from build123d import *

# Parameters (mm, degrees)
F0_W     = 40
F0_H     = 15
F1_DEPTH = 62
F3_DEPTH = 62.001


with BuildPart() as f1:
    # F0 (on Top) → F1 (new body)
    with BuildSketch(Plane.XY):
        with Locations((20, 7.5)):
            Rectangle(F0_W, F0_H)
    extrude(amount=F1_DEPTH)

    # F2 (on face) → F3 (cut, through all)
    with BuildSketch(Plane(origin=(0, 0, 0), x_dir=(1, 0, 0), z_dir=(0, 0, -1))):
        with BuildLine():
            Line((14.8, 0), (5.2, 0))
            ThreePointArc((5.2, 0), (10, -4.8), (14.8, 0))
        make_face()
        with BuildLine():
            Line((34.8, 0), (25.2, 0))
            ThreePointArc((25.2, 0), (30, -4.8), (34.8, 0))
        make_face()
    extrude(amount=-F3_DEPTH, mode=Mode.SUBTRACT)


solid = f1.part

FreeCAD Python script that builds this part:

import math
import FreeCAD as App
import Part
import Sketcher

V = App.Vector


def add_polygon(sketch, points):
    """Adds a closed chain of lines whose ends are joined by coincident constraints."""
    first, n = sketch.GeometryCount, len(points)
    for a, b in zip(points, points[1:] + points[:1]):
        sketch.addGeometry(Part.LineSegment(App.Vector(*a, 0), App.Vector(*b, 0)), False)
    for i in range(n):
        sketch.addConstraint(Sketcher.Constraint("Coincident", first + i, 2, first + (i + 1) % n, 1))

doc = App.newDocument("Part")
body = doc.addObject("PartDesign::Body", "Body")

# Sketch on XY plane
sketch1 = body.newObject("Sketcher::SketchObject", "Sketch")
sketch1.AttachmentSupport = (doc.getObject("XY_Plane"), [""])
sketch1.MapMode = "FlatFace"
add_polygon(sketch1, [(0, 15), (0, 0), (40, 0), (40, 15)])  # lines 0-3
sketch1.addConstraint(Sketcher.Constraint("Vertical", 0))
sketch1.addConstraint(Sketcher.Constraint("Horizontal", 1))
sketch1.addConstraint(Sketcher.Constraint("Vertical", 2))
sketch1.addConstraint(Sketcher.Constraint("Horizontal", 3))
sketch1.addConstraint(Sketcher.Constraint("Coincident", 0, 2, -1, 1))
sketch1.addConstraint(Sketcher.Constraint("DistanceX", 1, 1, 1, 2, 40.0))
sketch1.addConstraint(Sketcher.Constraint("DistanceY", 0, 2, 0, 1, 15.0))
pad1 = body.newObject("PartDesign::Pad", "Pad")
pad1.Profile = sketch1
pad1.Length = 62

# Sketch on XY plane
sketch2 = body.newObject("Sketcher::SketchObject", "Sketch001")
sketch2.AttachmentSupport = (doc.getObject("XY_Plane"), [""])
sketch2.MapMode = "FlatFace"
sketch2.addGeometry(Part.LineSegment(V(14.8, 0, 0), V(5.2, 0, 0)), False)
sketch2.addGeometry(Part.ArcOfCircle(Part.Circle(V(10, 0, 0), V(0, 0, 1), 4.8), math.radians(0), math.radians(180)), False)
sketch2.addGeometry(Part.LineSegment(V(34.8, 0, 0), V(25.2, 0, 0)), False)
sketch2.addGeometry(Part.ArcOfCircle(Part.Circle(V(30, 0, 0), V(0, 0, 1), 4.8), math.radians(0), math.radians(180)), False)
sketch2.addConstraint(Sketcher.Constraint("Coincident", 0, 1, 1, 1))
sketch2.addConstraint(Sketcher.Constraint("Coincident", 1, 2, 0, 2))
sketch2.addConstraint(Sketcher.Constraint("Coincident", 2, 1, 3, 1))
sketch2.addConstraint(Sketcher.Constraint("Coincident", 3, 2, 2, 2))
sketch2.addConstraint(Sketcher.Constraint("Horizontal", 0))
sketch2.addConstraint(Sketcher.Constraint("Horizontal", 2))
sketch2.addConstraint(Sketcher.Constraint("Equal", 1, 3))
sketch2.addConstraint(Sketcher.Constraint("PointOnObject", 1, 3, -1))
sketch2.addConstraint(Sketcher.Constraint("PointOnObject", 3, 3, -1))
sketch2.addConstraint(Sketcher.Constraint("PointOnObject", 0, 1, -1))
sketch2.addConstraint(Sketcher.Constraint("PointOnObject", 2, 1, -1))
sketch2.addConstraint(Sketcher.Constraint("Radius", 1, 4.8))
sketch2.addConstraint(Sketcher.Constraint("DistanceX", -1, 1, 1, 3, 10.0))
sketch2.addConstraint(Sketcher.Constraint("DistanceX", -1, 1, 3, 3, 30.0))
pocket1 = body.newObject("PartDesign::Pocket", "Pocket")
pocket1.Profile = sketch2
pocket1.Type = "ThroughAll"
pocket1.Reversed = True

doc.recompute()
